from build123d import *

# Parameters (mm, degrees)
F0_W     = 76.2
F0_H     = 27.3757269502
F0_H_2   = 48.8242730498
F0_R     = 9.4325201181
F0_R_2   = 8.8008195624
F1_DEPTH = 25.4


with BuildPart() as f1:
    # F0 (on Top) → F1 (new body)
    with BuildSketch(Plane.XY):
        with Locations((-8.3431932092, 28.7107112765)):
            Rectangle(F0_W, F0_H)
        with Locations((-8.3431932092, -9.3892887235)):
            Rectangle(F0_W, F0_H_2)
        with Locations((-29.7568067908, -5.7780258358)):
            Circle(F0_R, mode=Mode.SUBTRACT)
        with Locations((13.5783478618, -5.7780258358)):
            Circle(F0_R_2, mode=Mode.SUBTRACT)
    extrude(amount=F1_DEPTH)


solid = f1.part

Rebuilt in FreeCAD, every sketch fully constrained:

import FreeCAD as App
import Part
import Sketcher

V = App.Vector
Q = App.Units.Quantity


def add_polygon(sketch, points):
    """Adds a closed chain of lines whose ends are joined by coincident constraints."""
    first, n = sketch.GeometryCount, len(points)
    for a, b in zip(points, points[1:] + points[:1]):
        sketch.addGeometry(Part.LineSegment(App.Vector(*a, 0), App.Vector(*b, 0)), False)
    for i in range(n):
        sketch.addConstraint(Sketcher.Constraint("Coincident", first + i, 2, first + (i + 1) % n, 1))

doc = App.newDocument("Part")
body = doc.addObject("PartDesign::Body", "Body")

# Sketch on XY plane
sketch1 = body.newObject("Sketcher::SketchObject", "Sketch")
sketch1.AttachmentSupport = (doc.getObject("XY_Plane"), [""])
sketch1.MapMode = "FlatFace"
add_polygon(sketch1, [(-46.443193, 42.398575), (-46.443193, -33.801425), (29.756807, -33.801425), (29.756807, 42.398575)])  # lines 0-3
sketch1.addGeometry(Part.Circle(V(-29.756807, -5.778026, 0), V(0, 0, 1), 9.43252), False)  # 4
sketch1.addGeometry(Part.Circle(V(13.578348, -5.778026, 0), V(0, 0, 1), 8.80082), False)  # 5
sketch1.addConstraint(Sketcher.Constraint("Vertical", 0))
sketch1.addConstraint(Sketcher.Constraint("Horizontal", 1))
sketch1.addConstraint(Sketcher.Constraint("Vertical", 2))
sketch1.addConstraint(Sketcher.Constraint("Horizontal", 3))
sketch1.addConstraint(Sketcher.Constraint("Horizontal", 4, 3, 5, 3))
sketch1.addConstraint(Sketcher.Constraint("Equal", 3, 0))
sketch1.addConstraint(Sketcher.Constraint("DistanceX", 1, 1, 1, 2, Q("3 in")))
sketch1.addConstraint(Sketcher.Constraint("Diameter", 4, 18.86504))
sketch1.addConstraint(Sketcher.Constraint("Diameter", 5, 17.601639))
sketch1.addConstraint(Sketcher.Constraint("DistanceY", 0, 2, 4, 3, 28.023399))
sketch1.addConstraint(Sketcher.Constraint("DistanceX", 0, 2, 5, 3, 60.021541))
sketch1.addConstraint(Sketcher.Constraint("DistanceX", 4, 3, -1, 1, 29.756807))
sketch1.addConstraint(Sketcher.Constraint("DistanceY", 4, 3, -1, 1, 5.778026))
sketch1.addConstraint(Sketcher.Constraint("DistanceX", -1, 1, 5, 3, 13.578348))
pad1 = body.newObject("PartDesign::Pad", "Pad")
pad1.Profile = sketch1
pad1.Length = Q("1 in")

doc.recompute()
